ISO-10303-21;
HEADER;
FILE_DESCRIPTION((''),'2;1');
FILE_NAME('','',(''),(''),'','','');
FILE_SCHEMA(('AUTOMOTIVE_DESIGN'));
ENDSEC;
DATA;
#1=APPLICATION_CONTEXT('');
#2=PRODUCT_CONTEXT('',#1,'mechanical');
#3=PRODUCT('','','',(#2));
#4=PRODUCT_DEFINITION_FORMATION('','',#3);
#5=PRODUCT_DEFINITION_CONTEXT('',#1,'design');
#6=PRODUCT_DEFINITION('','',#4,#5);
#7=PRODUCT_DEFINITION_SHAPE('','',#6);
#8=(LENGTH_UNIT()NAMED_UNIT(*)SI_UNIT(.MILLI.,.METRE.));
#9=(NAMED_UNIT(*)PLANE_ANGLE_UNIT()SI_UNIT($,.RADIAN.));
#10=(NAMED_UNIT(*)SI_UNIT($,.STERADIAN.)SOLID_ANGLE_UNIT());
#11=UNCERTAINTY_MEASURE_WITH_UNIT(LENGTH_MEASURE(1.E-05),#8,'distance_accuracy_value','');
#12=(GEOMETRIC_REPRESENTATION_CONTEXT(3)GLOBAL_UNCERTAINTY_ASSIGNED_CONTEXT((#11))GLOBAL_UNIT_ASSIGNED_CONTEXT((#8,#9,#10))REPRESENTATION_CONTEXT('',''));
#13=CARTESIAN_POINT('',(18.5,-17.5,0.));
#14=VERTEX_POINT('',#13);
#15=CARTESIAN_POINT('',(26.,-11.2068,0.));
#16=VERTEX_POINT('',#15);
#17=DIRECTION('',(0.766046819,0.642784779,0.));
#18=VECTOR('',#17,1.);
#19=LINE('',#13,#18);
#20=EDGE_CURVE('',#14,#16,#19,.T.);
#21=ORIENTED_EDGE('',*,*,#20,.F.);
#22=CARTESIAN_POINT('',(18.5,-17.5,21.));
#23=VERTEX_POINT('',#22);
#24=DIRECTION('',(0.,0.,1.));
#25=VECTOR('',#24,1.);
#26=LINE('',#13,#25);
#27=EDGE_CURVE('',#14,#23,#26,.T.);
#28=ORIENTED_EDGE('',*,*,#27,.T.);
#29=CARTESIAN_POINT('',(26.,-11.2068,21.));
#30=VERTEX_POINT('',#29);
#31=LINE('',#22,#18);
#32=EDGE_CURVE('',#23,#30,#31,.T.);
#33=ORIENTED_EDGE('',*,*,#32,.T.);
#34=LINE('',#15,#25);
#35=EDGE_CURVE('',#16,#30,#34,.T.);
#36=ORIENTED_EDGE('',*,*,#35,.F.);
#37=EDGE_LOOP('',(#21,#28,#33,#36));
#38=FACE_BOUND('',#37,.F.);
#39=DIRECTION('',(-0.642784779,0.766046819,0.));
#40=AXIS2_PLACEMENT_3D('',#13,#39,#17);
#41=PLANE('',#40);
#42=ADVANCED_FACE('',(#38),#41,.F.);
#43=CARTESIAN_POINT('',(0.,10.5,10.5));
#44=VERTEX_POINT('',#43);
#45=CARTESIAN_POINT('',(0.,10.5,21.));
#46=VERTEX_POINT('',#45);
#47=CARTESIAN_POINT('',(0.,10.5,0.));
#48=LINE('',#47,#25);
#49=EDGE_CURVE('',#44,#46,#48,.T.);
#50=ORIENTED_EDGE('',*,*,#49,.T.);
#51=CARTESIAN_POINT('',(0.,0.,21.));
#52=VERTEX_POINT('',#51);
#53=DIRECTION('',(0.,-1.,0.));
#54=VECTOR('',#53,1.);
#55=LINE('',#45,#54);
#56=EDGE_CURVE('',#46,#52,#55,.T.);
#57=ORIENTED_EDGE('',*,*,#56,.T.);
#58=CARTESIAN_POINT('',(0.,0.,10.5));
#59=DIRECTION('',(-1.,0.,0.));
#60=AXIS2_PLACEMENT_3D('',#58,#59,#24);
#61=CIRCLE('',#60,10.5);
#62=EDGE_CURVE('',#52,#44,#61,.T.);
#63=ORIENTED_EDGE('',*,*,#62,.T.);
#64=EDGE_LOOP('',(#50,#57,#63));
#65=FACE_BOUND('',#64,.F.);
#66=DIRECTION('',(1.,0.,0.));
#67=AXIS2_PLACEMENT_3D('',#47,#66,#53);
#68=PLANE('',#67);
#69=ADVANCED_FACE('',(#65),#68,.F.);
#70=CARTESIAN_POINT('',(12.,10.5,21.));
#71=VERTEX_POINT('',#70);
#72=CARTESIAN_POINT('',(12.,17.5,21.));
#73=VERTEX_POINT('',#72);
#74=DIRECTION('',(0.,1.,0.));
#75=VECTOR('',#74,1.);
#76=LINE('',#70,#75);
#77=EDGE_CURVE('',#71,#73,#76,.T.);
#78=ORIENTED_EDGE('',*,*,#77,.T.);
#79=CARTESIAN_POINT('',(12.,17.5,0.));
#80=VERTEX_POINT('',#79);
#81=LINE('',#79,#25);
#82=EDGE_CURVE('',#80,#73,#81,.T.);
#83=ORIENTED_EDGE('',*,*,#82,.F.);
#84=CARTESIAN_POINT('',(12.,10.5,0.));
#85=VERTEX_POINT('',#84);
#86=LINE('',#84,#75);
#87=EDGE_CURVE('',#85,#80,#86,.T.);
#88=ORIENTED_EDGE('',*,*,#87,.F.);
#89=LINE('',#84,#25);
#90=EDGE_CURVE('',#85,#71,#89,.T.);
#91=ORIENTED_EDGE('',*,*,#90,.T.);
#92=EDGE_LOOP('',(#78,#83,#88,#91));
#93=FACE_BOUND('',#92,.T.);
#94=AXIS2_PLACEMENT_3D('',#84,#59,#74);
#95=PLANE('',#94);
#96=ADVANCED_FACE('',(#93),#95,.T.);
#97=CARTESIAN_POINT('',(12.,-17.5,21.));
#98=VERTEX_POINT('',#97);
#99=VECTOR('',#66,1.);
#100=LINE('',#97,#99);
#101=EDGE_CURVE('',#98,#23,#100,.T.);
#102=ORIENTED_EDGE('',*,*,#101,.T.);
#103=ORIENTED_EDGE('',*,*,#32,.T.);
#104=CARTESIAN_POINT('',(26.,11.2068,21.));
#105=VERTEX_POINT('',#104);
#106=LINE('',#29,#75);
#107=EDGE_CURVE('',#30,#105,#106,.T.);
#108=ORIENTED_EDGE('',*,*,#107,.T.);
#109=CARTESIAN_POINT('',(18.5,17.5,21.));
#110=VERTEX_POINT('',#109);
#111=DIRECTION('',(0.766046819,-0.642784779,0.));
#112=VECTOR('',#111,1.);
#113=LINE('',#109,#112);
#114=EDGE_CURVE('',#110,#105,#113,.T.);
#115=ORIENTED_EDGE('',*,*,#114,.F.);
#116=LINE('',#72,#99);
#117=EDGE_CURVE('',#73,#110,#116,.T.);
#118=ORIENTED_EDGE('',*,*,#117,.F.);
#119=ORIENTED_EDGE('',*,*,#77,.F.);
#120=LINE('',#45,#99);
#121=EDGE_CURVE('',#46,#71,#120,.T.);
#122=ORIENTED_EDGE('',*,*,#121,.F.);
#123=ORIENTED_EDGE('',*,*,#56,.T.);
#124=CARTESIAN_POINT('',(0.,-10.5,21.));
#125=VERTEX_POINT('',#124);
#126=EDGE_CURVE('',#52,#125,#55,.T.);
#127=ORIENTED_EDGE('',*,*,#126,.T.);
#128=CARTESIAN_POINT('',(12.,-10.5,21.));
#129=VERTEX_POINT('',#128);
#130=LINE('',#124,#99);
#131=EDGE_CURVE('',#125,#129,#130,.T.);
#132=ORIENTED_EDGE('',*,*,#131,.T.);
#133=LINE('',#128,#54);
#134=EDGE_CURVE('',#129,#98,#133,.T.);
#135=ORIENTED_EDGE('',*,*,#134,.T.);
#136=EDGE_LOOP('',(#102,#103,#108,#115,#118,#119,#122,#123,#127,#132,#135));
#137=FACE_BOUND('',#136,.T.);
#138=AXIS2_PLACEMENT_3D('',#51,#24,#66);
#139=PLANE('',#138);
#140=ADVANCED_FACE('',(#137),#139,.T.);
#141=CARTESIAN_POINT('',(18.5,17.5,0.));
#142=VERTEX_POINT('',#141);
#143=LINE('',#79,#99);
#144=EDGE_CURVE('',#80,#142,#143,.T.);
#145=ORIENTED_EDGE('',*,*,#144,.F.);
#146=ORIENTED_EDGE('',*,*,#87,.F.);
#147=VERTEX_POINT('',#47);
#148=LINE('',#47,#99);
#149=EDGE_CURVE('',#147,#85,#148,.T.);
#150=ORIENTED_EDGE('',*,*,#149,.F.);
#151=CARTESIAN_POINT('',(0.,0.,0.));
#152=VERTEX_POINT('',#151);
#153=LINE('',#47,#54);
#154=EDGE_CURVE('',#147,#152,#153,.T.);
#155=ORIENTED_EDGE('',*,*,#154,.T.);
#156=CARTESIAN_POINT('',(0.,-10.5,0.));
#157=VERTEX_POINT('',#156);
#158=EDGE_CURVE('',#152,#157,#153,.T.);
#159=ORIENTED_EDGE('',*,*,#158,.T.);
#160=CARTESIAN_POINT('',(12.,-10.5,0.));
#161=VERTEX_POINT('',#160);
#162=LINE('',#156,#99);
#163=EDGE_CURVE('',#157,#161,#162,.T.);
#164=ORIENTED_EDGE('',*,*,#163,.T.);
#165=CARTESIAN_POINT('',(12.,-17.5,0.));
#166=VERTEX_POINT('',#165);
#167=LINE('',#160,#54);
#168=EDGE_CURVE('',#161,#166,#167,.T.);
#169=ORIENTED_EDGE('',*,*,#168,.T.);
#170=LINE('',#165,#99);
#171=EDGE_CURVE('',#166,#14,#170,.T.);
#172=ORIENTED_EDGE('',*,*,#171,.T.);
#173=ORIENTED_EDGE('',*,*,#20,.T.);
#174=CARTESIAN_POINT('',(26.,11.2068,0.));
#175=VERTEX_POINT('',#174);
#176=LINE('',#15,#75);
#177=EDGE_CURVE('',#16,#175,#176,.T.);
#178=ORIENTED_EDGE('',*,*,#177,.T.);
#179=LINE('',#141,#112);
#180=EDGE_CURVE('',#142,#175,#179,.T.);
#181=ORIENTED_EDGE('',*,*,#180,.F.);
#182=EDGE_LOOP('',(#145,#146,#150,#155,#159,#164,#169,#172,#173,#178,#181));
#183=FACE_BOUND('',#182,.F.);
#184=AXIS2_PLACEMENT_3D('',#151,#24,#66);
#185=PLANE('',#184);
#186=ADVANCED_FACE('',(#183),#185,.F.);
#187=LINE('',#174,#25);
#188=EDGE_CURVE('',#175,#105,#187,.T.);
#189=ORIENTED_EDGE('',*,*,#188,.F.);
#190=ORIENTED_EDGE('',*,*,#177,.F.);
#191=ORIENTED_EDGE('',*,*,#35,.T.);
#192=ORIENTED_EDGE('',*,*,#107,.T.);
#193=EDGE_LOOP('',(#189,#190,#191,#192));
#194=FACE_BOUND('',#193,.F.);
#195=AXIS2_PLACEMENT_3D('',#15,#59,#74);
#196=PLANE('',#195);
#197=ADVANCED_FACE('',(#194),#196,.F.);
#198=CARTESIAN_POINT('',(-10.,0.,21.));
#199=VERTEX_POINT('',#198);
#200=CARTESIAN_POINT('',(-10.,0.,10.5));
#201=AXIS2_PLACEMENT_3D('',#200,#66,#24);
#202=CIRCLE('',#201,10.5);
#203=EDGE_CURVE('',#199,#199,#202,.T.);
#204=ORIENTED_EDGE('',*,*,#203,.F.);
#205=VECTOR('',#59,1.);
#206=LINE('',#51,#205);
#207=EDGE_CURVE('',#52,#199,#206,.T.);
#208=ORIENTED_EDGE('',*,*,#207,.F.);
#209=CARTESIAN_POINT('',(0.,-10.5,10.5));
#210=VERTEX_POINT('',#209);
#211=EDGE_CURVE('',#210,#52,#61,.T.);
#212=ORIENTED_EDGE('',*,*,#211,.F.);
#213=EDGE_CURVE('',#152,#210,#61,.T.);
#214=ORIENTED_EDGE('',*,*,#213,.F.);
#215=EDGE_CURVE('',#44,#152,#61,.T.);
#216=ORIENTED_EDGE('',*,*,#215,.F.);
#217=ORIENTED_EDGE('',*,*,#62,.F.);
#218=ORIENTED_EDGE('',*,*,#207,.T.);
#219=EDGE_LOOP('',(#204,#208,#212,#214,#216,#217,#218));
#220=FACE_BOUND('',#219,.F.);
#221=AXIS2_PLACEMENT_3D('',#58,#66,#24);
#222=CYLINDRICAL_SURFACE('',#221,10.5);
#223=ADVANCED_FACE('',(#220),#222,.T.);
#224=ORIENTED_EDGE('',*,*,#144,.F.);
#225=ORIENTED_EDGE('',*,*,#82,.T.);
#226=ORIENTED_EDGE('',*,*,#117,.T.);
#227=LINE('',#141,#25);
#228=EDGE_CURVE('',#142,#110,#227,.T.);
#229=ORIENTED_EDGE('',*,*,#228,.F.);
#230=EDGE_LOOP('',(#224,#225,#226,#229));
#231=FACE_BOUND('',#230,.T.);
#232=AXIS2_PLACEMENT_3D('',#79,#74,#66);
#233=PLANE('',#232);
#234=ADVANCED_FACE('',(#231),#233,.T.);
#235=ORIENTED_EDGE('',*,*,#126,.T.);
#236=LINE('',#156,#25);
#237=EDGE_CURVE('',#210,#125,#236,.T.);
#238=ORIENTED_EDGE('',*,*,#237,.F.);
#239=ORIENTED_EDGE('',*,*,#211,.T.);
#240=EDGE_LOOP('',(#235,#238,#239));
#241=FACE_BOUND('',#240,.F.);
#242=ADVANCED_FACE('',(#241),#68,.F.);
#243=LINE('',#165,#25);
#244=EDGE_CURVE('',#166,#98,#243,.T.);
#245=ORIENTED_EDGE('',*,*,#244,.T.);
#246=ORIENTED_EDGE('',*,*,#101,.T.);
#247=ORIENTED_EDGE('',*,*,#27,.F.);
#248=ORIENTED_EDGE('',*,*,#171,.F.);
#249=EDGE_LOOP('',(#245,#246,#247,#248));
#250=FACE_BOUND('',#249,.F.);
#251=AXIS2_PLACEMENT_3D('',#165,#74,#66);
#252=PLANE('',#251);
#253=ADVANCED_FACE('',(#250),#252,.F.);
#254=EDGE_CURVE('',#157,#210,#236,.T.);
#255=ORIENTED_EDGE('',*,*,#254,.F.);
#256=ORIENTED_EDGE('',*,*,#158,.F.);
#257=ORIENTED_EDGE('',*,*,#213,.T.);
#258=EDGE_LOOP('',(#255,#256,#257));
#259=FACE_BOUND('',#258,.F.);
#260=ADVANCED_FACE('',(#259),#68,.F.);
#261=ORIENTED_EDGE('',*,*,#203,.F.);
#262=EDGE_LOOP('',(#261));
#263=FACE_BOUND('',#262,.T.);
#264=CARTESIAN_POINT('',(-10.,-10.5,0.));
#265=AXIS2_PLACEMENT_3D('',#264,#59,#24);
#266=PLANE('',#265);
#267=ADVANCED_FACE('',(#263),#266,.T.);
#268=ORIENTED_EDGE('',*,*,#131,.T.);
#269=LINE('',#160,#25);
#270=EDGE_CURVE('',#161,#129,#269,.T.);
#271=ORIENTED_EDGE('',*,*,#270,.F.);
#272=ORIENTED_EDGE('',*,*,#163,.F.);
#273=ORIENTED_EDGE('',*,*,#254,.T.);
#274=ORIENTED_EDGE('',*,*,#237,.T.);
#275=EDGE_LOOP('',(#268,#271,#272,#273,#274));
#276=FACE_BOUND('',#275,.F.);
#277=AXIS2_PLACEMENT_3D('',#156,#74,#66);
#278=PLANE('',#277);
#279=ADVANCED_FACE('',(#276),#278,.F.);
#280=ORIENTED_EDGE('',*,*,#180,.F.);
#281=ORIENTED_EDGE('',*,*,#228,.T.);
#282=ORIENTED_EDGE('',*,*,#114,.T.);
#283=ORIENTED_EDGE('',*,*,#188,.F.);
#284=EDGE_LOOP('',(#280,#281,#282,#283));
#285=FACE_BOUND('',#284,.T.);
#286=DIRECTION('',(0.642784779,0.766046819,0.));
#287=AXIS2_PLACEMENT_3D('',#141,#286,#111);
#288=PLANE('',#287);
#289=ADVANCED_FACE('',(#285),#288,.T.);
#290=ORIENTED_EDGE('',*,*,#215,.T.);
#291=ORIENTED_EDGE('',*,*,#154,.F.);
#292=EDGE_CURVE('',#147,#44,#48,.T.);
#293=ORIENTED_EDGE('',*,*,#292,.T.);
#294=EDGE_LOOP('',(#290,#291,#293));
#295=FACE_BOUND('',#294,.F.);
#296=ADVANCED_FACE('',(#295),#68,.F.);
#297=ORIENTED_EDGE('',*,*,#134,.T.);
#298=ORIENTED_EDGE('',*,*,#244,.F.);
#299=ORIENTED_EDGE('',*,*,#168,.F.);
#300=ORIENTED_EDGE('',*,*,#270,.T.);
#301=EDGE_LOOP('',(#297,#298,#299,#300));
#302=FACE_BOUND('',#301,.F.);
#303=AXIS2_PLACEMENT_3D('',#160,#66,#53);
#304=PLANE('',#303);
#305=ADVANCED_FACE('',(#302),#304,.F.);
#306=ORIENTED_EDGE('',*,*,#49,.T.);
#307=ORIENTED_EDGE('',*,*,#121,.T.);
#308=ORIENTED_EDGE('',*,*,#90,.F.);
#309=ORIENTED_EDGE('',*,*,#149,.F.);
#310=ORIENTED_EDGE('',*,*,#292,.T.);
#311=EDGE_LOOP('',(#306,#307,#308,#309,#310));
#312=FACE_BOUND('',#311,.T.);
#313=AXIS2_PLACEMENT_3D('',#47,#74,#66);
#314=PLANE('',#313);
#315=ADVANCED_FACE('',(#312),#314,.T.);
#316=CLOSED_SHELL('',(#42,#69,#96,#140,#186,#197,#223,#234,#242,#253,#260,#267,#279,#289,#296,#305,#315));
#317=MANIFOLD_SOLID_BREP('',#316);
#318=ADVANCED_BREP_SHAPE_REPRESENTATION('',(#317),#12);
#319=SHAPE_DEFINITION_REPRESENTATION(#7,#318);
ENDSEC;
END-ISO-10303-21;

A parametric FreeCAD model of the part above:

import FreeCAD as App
import Part
import Sketcher
from FreeCAD import Vector
Q = App.Units.Quantity


def add_polygon(sketch, points):
    """Adds a closed chain of lines whose ends are joined by coincident constraints."""
    first, n = sketch.GeometryCount, len(points)
    for a, b in zip(points, points[1:] + points[:1]):
        sketch.addGeometry(Part.LineSegment(App.Vector(*a, 0), App.Vector(*b, 0)), False)
    for i in range(n):
        sketch.addConstraint(Sketcher.Constraint("Coincident", first + i, 2, first + (i + 1) % n, 1))

doc = App.newDocument("Part")
params = doc.addObject("Spreadsheet::Sheet", "Params")
for row, (alias, value) in enumerate([
    ("sketch1_width", "12 mm"),
    ("sketch1_height", "21 mm"),
    ("sketch1_height2", "7 mm"),
    ("sketch1_width2", "6.5 mm"),
    ("pad1_length", "21 mm"),
    ("sketch2_diameter", "21 mm"),
    ("pad2_length", "10 mm"),
], start=1):
    params.set(f"A{row}", alias)
    params.set(f"B{row}", "=" + value)
    params.setAlias(f"B{row}", alias)

body = doc.addObject("PartDesign::Body", "Body")

# Sketch on XY plane
sketch1 = body.newObject("Sketcher::SketchObject", "Sketch")
sketch1.AttachmentSupport = (doc.getObject("XY_Plane"), [""])
sketch1.MapMode = "FlatFace"
add_polygon(sketch1, [(12, 10), (0, 10), (0, -10), (12, -10), (12, -18), (18, -18), (26, -11), (26, 11), (18, 18), (12, 18)])  # lines 0-9
sketch1.addConstraint([
    Sketcher.Constraint("Horizontal", 0),
    Sketcher.Constraint("Vertical", 1),
    Sketcher.Constraint("Horizontal", 2),
    Sketcher.Constraint("Vertical", 3),
    Sketcher.Constraint("Horizontal", 4),
    Sketcher.Constraint("Vertical", 6),
    Sketcher.Constraint("Horizontal", 8),
    Sketcher.Constraint("Vertical", 9),
    Sketcher.Constraint("Symmetric", 0, 2, 1, 2, -1, 1),
    Sketcher.Constraint("Symmetric", 4, 2, 7, 2, -1),
    Sketcher.Constraint("Vertical", 3, 2, 8, 2),
    Sketcher.Constraint("Equal", 5, 7),
    Sketcher.Constraint("DistanceX", 0, 2, 0, 1, 12.0),
    Sketcher.Constraint("DistanceY", 1, 2, 1, 1, 21.0),
    Sketcher.Constraint("DistanceY", 3, 2, 3, 1, 7.0),
    Sketcher.Constraint("Angle", 7, Q("140.0002 deg")),
    Sketcher.Constraint("DistanceX", 4, 1, 4, 2, 6.5),
    Sketcher.Constraint("DistanceX", 2, 2, 5, 2, 14.0),
])
sketch1.setExpression("Constraints[22]", "Params.sketch1_width")
sketch1.setExpression("Constraints[23]", "Params.sketch1_height")
sketch1.setExpression("Constraints[24]", "Params.sketch1_height2")
sketch1.setExpression("Constraints[26]", "Params.sketch1_width2")
pad1 = body.newObject("PartDesign::Pad", "Pad")
pad1.Profile = sketch1
pad1.setExpression("Length", "Params.pad1_length")

# Sketch on YZ plane
sketch2 = body.newObject("Sketcher::SketchObject", "Sketch001")
sketch2.AttachmentSupport = (doc.getObject("YZ_Plane"), [""])
sketch2.MapMode = "FlatFace"
sketch2.addGeometry(Part.Circle(Vector(0, 10, 0), Vector(0, 0, 1), 10), False)
sketch2.addConstraint([
    Sketcher.Constraint("PointOnObject", 0, 3, -2),
    Sketcher.Constraint("Diameter", 0, 21.0),
    Sketcher.Constraint("DistanceY", -1, 1, 0, 3, 10.5),
])
sketch2.setExpression("Constraints[1]", "Params.sketch2_diameter")
pad2 = body.newObject("PartDesign::Pad", "Pad001")
pad2.Profile = sketch2
pad2.setExpression("Length", "Params.pad2_length")
pad2.Reversed = True

doc.recompute()
